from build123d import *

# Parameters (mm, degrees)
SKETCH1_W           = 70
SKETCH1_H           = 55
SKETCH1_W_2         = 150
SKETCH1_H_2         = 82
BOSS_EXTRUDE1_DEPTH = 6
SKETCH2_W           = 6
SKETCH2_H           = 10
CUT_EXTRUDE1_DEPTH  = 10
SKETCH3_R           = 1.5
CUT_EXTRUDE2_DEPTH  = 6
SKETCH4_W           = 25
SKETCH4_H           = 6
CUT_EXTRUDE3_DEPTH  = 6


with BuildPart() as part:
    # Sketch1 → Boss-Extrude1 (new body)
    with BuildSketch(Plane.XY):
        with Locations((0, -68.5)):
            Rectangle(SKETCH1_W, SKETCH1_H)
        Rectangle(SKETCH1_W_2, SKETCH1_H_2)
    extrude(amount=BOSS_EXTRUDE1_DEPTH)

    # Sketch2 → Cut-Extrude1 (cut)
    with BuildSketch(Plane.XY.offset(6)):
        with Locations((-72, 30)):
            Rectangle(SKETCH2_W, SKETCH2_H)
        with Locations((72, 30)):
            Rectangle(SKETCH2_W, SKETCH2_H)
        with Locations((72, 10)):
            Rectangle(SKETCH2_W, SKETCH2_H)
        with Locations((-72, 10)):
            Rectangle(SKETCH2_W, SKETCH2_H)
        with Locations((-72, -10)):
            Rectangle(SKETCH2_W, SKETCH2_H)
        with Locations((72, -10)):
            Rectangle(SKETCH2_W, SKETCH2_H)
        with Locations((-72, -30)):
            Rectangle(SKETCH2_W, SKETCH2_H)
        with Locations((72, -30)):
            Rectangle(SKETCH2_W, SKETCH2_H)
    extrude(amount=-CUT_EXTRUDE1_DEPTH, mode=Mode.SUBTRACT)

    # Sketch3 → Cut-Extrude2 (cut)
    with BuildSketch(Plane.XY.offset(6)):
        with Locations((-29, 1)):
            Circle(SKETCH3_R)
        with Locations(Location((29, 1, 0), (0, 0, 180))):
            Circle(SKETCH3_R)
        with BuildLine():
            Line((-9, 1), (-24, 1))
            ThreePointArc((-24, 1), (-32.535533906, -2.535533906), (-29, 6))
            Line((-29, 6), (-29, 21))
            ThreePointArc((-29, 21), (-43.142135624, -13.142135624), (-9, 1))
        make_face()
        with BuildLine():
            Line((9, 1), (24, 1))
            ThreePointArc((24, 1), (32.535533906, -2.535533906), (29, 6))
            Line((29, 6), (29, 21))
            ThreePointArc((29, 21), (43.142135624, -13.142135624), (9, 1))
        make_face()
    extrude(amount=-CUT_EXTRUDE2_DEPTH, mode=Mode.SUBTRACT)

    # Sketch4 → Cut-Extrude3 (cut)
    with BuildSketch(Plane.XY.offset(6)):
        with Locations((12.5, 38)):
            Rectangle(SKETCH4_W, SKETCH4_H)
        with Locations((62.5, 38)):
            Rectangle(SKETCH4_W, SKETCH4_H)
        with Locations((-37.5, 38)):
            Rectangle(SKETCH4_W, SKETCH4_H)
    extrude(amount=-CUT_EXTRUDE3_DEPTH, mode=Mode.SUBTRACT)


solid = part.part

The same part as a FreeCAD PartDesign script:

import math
import FreeCAD as App
import Part
import Sketcher
from FreeCAD import Vector


def add_polygon(sketch, points):
    """Adds a closed chain of lines whose ends are joined by coincident constraints."""
    first, n = sketch.GeometryCount, len(points)
    for a, b in zip(points, points[1:] + points[:1]):
        sketch.addGeometry(Part.LineSegment(App.Vector(*a, 0), App.Vector(*b, 0)), False)
    for i in range(n):
        sketch.addConstraint(Sketcher.Constraint("Coincident", first + i, 2, first + (i + 1) % n, 1))

doc = App.newDocument("Part")
body = doc.addObject("PartDesign::Body", "Body")

# Sketch on XY plane
sketch1 = body.newObject("Sketcher::SketchObject", "Sketch")
sketch1.AttachmentSupport = (doc.getObject("XY_Plane"), [""])
sketch1.MapMode = "FlatFace"
add_polygon(sketch1, [(-35, -41), (-35, -96), (35, -96), (35, -41), (75, -41), (75, 41), (-75, 41), (-75, -41)])  # lines 0-7
sketch1.addConstraint(Sketcher.Constraint("Vertical", 0))
sketch1.addConstraint(Sketcher.Constraint("Horizontal", 1))
sketch1.addConstraint(Sketcher.Constraint("Vertical", 2))
sketch1.addConstraint(Sketcher.Constraint("Horizontal", 3))
sketch1.addConstraint(Sketcher.Constraint("Vertical", 4))
sketch1.addConstraint(Sketcher.Constraint("Horizontal", 5))
sketch1.addConstraint(Sketcher.Constraint("Vertical", 6))
sketch1.addConstraint(Sketcher.Constraint("Horizontal", 7))
sketch1.addConstraint(Sketcher.Constraint("Symmetric", 3, 2, 5, 2, -1, 1))
sketch1.addConstraint(Sketcher.Constraint("Symmetric", 2, 2, 7, 2, -2))
sketch1.addConstraint(Sketcher.Constraint("DistanceX", 1, 1, 1, 2, 70.0))
sketch1.addConstraint(Sketcher.Constraint("DistanceX", 3, 1, 3, 2, 40.0))
sketch1.addConstraint(Sketcher.Constraint("DistanceY", 0, 2, 0, 1, 55.0))
sketch1.addConstraint(Sketcher.Constraint("DistanceY", 4, 1, 4, 2, 82.0))
pad1 = body.newObject("PartDesign::Pad", "Pad")
pad1.Profile = sketch1
pad1.Length = 6

# Sketch on XY plane
sketch2 = body.newObject("Sketcher::SketchObject", "Sketch001")
sketch2.AttachmentSupport = (doc.getObject("XY_Plane"), [""])
sketch2.MapMode = "FlatFace"
sketch2.AttachmentOffset = App.Placement(Vector(0, 0, 6), App.Rotation())
add_polygon(sketch2, [(-75, 35), (-75, 25), (-69, 25), (-69, 35)])  # lines 0-3
add_polygon(sketch2, [(69, 35), (69, 25), (75, 25), (75, 35)])  # lines 4-7
add_polygon(sketch2, [(69, 15), (69, 5), (75, 5), (75, 15)])  # lines 8-11
add_polygon(sketch2, [(-75, 15), (-75, 5), (-69, 5), (-69, 15)])  # lines 12-15
add_polygon(sketch2, [(-75, -5), (-75, -15), (-69, -15), (-69, -5)])  # lines 16-19
add_polygon(sketch2, [(69, -5), (69, -15), (75, -15), (75, -5)])  # lines 20-23
add_polygon(sketch2, [(-75, -25), (-75, -35), (-69, -35), (-69, -25)])  # lines 24-27
add_polygon(sketch2, [(69, -25), (69, -35), (75, -35), (75, -25)])  # lines 28-31
sketch2.addConstraint(Sketcher.Constraint("Vertical", 0))
sketch2.addConstraint(Sketcher.Constraint("Horizontal", 1))
sketch2.addConstraint(Sketcher.Constraint("Vertical", 2))
sketch2.addConstraint(Sketcher.Constraint("Horizontal", 3))
sketch2.addConstraint(Sketcher.Constraint("Vertical", 4))
sketch2.addConstraint(Sketcher.Constraint("Horizontal", 5))
sketch2.addConstraint(Sketcher.Constraint("Vertical", 6))
sketch2.addConstraint(Sketcher.Constraint("Horizontal", 7))
sketch2.addConstraint(Sketcher.Constraint("Vertical", 8))
sketch2.addConstraint(Sketcher.Constraint("Horizontal", 9))
sketch2.addConstraint(Sketcher.Constraint("Vertical", 10))
sketch2.addConstraint(Sketcher.Constraint("Horizontal", 11))
sketch2.addConstraint(Sketcher.Constraint("Vertical", 12))
sketch2.addConstraint(Sketcher.Constraint("Horizontal", 13))
sketch2.addConstraint(Sketcher.Constraint("Vertical", 14))
sketch2.addConstraint(Sketcher.Constraint("Horizontal", 15))
sketch2.addConstraint(Sketcher.Constraint("Vertical", 16))
sketch2.addConstraint(Sketcher.Constraint("Horizontal", 17))
sketch2.addConstraint(Sketcher.Constraint("Vertical", 18))
sketch2.addConstraint(Sketcher.Constraint("Horizontal", 19))
sketch2.addConstraint(Sketcher.Constraint("Vertical", 20))
sketch2.addConstraint(Sketcher.Constraint("Horizontal", 21))
sketch2.addConstraint(Sketcher.Constraint("Vertical", 22))
sketch2.addConstraint(Sketcher.Constraint("Horizontal", 23))
sketch2.addConstraint(Sketcher.Constraint("Vertical", 24))
sketch2.addConstraint(Sketcher.Constraint("Horizontal", 25))
sketch2.addConstraint(Sketcher.Constraint("Vertical", 26))
sketch2.addConstraint(Sketcher.Constraint("Horizontal", 27))
sketch2.addConstraint(Sketcher.Constraint("Vertical", 28))
sketch2.addConstraint(Sketcher.Constraint("Horizontal", 29))
sketch2.addConstraint(Sketcher.Constraint("Vertical", 30))
sketch2.addConstraint(Sketcher.Constraint("Horizontal", 31))
sketch2.addConstraint(Sketcher.Constraint("Symmetric", 10, 2, 16, 2, -1, 1))
sketch2.addConstraint(Sketcher.Constraint("Symmetric", 8, 2, 18, 2, -1, 1))
sketch2.addConstraint(Sketcher.Constraint("Symmetric", 14, 2, 20, 2, -1, 1))
sketch2.addConstraint(Sketcher.Constraint("Symmetric", 12, 2, 22, 2, -1, 1))
sketch2.addConstraint(Sketcher.Constraint("Symmetric", 6, 2, 24, 2, -1, 1))
sketch2.addConstraint(Sketcher.Constraint("Symmetric", 4, 2, 26, 2, -1, 1))
sketch2.addConstraint(Sketcher.Constraint("Symmetric", 2, 2, 28, 2, -1, 1))
sketch2.addConstraint(Sketcher.Constraint("Symmetric", 0, 2, 30, 2, -1, 1))
sketch2.addConstraint(Sketcher.Constraint("Symmetric", 1, 2, 4, 2, -2))
sketch2.addConstraint(Sketcher.Constraint("Symmetric", 3, 2, 6, 2, -2))
sketch2.addConstraint(Sketcher.Constraint("Symmetric", 9, 2, 12, 2, -2))
sketch2.addConstraint(Sketcher.Constraint("Symmetric", 11, 2, 14, 2, -2))
sketch2.addConstraint(Sketcher.Constraint("Vertical", 7, 2, 8, 2))
sketch2.addConstraint(Sketcher.Constraint("Vertical", 6, 2, 9, 2))
sketch2.addConstraint(Sketcher.Constraint("Equal", 6, 8))
sketch2.addConstraint(Sketcher.Constraint("DistanceX", 1, 1, 1, 2, 6.0))
sketch2.addConstraint(Sketcher.Constraint("DistanceY", 0, 2, 0, 1, 10.0))
sketch2.addConstraint(Sketcher.Constraint("DistanceX", 0, 2, -1, 1, 75.0))
sketch2.addConstraint(Sketcher.Constraint("DistanceY", -1, 1, 0, 2, 25.0))
sketch2.addConstraint(Sketcher.Constraint("DistanceY", -1, 1, 8, 2, 5.0))
pocket1 = body.newObject("PartDesign::Pocket", "Pocket")
pocket1.Profile = sketch2
pocket1.Length = 10

# Sketch on XY plane
sketch3 = body.newObject("Sketcher::SketchObject", "Sketch002")
sketch3.AttachmentSupport = (doc.getObject("XY_Plane"), [""])
sketch3.MapMode = "FlatFace"
sketch3.AttachmentOffset = App.Placement(Vector(0, 0, 6), App.Rotation())
sketch3.addGeometry(Part.Circle(Vector(-29, 1, 0), Vector(0, 0, 1), 1.5), False)
sketch3.addGeometry(Part.Circle(Vector(29, 1, 0), Vector(0, 0, 1), 1.5), False)
sketch3.addGeometry(Part.LineSegment(Vector(-9, 1, 0), Vector(-24, 1, 0)), False)
sketch3.addGeometry(Part.ArcOfCircle(Part.Circle(Vector(-29, 1, 0), Vector(0, 0, 1), 5), math.radians(90), math.radians(360)), False)
sketch3.addGeometry(Part.LineSegment(Vector(-29, 6, 0), Vector(-29, 21, 0)), False)
sketch3.addGeometry(Part.ArcOfCircle(Part.Circle(Vector(-29, 1, 0), Vector(0, 0, 1), 20), math.radians(90), math.radians(360)), False)
sketch3.addGeometry(Part.LineSegment(Vector(24, 1, 0), Vector(9, 1, 0)), False)
sketch3.addGeometry(Part.ArcOfCircle(Part.Circle(Vector(29, 1, 0), Vector(0, 0, 1), 20), math.radians(180), math.radians(450)), False)
sketch3.addGeometry(Part.LineSegment(Vector(29, 21, 0), Vector(29, 6, 0)), False)
sketch3.addGeometry(Part.ArcOfCircle(Part.Circle(Vector(29, 1, 0), Vector(0, 0, 1), 5), math.radians(180), math.radians(450)), False)
sketch3.addConstraint(Sketcher.Constraint("Coincident", 2, 2, 3, 2))
sketch3.addConstraint(Sketcher.Constraint("Coincident", 3, 1, 4, 1))
sketch3.addConstraint(Sketcher.Constraint("Coincident", 4, 2, 5, 1))
sketch3.addConstraint(Sketcher.Constraint("Coincident", 5, 2, 2, 1))
sketch3.addConstraint(Sketcher.Constraint("Coincident", 6, 2, 7, 1))
sketch3.addConstraint(Sketcher.Constraint("Coincident", 7, 2, 8, 1))
sketch3.addConstraint(Sketcher.Constraint("Coincident", 8, 2, 9, 2))
sketch3.addConstraint(Sketcher.Constraint("Coincident", 9, 1, 6, 1))
sketch3.addConstraint(Sketcher.Constraint("Horizontal", 2))
sketch3.addConstraint(Sketcher.Constraint("Vertical", 4))
sketch3.addConstraint(Sketcher.Constraint("Horizontal", 6))
sketch3.addConstraint(Sketcher.Constraint("Vertical", 8))
sketch3.addConstraint(Sketcher.Constraint("Coincident", 3, 3, 0, 3))
sketch3.addConstraint(Sketcher.Constraint("Coincident", 5, 3, 0, 3))
sketch3.addConstraint(Sketcher.Constraint("Coincident", 7, 3, 1, 3))
sketch3.addConstraint(Sketcher.Constraint("Coincident", 9, 3, 1, 3))
sketch3.addConstraint(Sketcher.Constraint("Equal", 0, 1))
sketch3.addConstraint(Sketcher.Constraint("Equal", 5, 7))
sketch3.addConstraint(Sketcher.Constraint("Equal", 3, 9))
sketch3.addConstraint(Sketcher.Constraint("Symmetric", 0, 3, 1, 3, -2))
sketch3.addConstraint(Sketcher.Constraint("Horizontal", 9, 3, 2, 2))
sketch3.addConstraint(Sketcher.Constraint("Horizontal", 5, 2, 6, 2))
sketch3.addConstraint(Sketcher.Constraint("Vertical", 5, 3, 3, 1))
sketch3.addConstraint(Sketcher.Constraint("Vertical", 9, 3, 7, 2))
sketch3.addConstraint(Sketcher.Constraint("Diameter", 0, 3.0))
sketch3.addConstraint(Sketcher.Constraint("Radius", 3, 5.0))
sketch3.addConstraint(Sketcher.Constraint("Radius", 5, 20.0))
sketch3.addConstraint(Sketcher.Constraint("DistanceX", 0, 3, -1, 1, 29.0))
sketch3.addConstraint(Sketcher.Constraint("DistanceY", -1, 1, 0, 3, 1.0))
pocket2 = body.newObject("PartDesign::Pocket", "Pocket001")
pocket2.Profile = sketch3
pocket2.Length = 6

# Sketch on XY plane
sketch4 = body.newObject("Sketcher::SketchObject", "Sketch003")
sketch4.AttachmentSupport = (doc.getObject("XY_Plane"), [""])
sketch4.MapMode = "FlatFace"
sketch4.AttachmentOffset = App.Placement(Vector(0, 0, 6), App.Rotation())
add_polygon(sketch4, [(0, 41), (0, 35), (25, 35), (25, 41)])  # lines 0-3
add_polygon(sketch4, [(50, 41), (50, 35), (75, 35), (75, 41)])  # lines 4-7
add_polygon(sketch4, [(-50, 41), (-50, 35), (-25, 35), (-25, 41)])  # lines 8-11
sketch4.addConstraint(Sketcher.Constraint("Vertical", 0))
sketch4.addConstraint(Sketcher.Constraint("Horizontal", 1))
sketch4.addConstraint(Sketcher.Constraint("Vertical", 2))
sketch4.addConstraint(Sketcher.Constraint("Horizontal", 3))
sketch4.addConstraint(Sketcher.Constraint("Vertical", 4))
sketch4.addConstraint(Sketcher.Constraint("Horizontal", 5))
sketch4.addConstraint(Sketcher.Constraint("Vertical", 6))
sketch4.addConstraint(Sketcher.Constraint("Horizontal", 7))
sketch4.addConstraint(Sketcher.Constraint("Vertical", 8))
sketch4.addConstraint(Sketcher.Constraint("Horizontal", 9))
sketch4.addConstraint(Sketcher.Constraint("Vertical", 10))
sketch4.addConstraint(Sketcher.Constraint("Horizontal", 11))
sketch4.addConstraint(Sketcher.Constraint("Symmetric", 4, 2, 8, 2, -2))
sketch4.addConstraint(Sketcher.Constraint("Symmetric", 1, 2, 9, 2, -2))
sketch4.addConstraint(Sketcher.Constraint("PointOnObject", 0, 2, -2))
sketch4.addConstraint(Sketcher.Constraint("Horizontal", 3, 2, 6, 2))
sketch4.addConstraint(Sketcher.Constraint("Horizontal", 7, 2, 10, 2))
sketch4.addConstraint(Sketcher.Constraint("Equal", 3, 5))
sketch4.addConstraint(Sketcher.Constraint("Equal", 7, 9))
sketch4.addConstraint(Sketcher.Constraint("DistanceX", 1, 1, 1, 2, 25.0))
sketch4.addConstraint(Sketcher.Constraint("DistanceY", 0, 2, 0, 1, 6.0))
sketch4.addConstraint(Sketcher.Constraint("DistanceY", -1, 1, 0, 2, 35.0))
pocket3 = body.newObject("PartDesign::Pocket", "Pocket002")
pocket3.Profile = sketch4
pocket3.Length = 6

doc.recompute()
